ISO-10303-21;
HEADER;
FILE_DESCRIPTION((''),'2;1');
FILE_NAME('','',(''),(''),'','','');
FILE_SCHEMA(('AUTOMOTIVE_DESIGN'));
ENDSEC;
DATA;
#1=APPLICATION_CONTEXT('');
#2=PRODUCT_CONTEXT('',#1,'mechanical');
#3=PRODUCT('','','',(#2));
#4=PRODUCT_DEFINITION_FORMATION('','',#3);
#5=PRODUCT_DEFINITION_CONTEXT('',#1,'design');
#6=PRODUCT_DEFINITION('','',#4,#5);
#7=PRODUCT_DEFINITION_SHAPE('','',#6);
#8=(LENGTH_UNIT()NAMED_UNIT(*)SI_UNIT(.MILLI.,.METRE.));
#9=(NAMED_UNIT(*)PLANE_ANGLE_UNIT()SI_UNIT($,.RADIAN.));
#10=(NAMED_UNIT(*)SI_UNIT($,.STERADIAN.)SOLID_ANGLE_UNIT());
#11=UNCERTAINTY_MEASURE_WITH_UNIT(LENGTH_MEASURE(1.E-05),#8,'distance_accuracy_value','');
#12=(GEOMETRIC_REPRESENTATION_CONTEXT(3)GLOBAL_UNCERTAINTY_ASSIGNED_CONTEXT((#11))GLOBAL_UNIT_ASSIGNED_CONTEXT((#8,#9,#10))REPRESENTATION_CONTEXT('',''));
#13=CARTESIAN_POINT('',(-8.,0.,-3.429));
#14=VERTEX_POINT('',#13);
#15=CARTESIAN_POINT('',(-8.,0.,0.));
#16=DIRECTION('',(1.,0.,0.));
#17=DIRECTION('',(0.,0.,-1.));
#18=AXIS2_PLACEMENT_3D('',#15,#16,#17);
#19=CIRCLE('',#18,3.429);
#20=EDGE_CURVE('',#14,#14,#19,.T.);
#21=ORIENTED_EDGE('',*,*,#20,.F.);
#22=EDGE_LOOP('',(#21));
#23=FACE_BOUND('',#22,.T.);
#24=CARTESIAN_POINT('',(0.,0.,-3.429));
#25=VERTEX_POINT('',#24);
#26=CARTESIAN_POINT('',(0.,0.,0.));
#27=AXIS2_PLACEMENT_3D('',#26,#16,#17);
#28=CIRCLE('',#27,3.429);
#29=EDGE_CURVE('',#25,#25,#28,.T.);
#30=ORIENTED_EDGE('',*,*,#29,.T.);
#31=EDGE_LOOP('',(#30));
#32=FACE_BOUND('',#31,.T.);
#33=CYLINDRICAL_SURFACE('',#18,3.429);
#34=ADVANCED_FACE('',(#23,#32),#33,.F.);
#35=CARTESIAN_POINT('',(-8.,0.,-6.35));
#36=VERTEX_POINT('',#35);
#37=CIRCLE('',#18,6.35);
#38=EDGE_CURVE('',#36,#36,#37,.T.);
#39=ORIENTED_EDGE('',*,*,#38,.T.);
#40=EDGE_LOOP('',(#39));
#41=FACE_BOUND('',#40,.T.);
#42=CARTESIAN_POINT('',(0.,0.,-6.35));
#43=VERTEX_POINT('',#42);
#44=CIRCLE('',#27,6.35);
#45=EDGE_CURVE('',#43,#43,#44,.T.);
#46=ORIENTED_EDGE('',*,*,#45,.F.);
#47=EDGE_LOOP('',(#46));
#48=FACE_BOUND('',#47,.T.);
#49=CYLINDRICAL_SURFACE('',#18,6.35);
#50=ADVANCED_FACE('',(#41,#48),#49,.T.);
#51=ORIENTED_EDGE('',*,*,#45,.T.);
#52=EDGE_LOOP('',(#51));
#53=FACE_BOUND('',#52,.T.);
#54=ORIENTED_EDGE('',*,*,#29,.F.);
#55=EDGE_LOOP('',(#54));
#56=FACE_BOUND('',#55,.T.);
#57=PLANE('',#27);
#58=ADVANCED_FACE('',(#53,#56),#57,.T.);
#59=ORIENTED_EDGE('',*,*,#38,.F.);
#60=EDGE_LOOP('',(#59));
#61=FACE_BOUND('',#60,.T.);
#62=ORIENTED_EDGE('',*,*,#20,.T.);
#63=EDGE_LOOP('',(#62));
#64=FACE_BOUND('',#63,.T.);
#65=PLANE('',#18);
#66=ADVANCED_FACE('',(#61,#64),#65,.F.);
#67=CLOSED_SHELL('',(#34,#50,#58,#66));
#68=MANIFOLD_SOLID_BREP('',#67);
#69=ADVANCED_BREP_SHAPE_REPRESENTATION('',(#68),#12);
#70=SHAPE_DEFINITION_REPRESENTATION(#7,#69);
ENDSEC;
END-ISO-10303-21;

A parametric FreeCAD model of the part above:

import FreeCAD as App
import Part
import Sketcher
Q = App.Units.Quantity

doc = App.newDocument("Part")
body = doc.addObject("PartDesign::Body", "Body")

sketch1 = doc.addObject("Sketcher::SketchObject", "Sketch")
body.addObject(sketch1)
sketch1.AttachmentSupport = (doc.YZ_Plane, [""])
sketch1.MapMode = "FlatFace"
sketch1.addGeometry([
    Part.Circle(App.Vector(0, 0, 0), App.Vector(0, 0, 1), 6.3),
    Part.Circle(App.Vector(0, 0, 0), App.Vector(0, 0, 1), 3.4),
], False)
sketch1.addConstraint([
    Sketcher.Constraint("Coincident", 0, 3, -1, 1),
    Sketcher.Constraint("Coincident", 1, 3, -1, 1),
    Sketcher.Constraint("Diameter", 0, Q("0.5 in")),
    Sketcher.Constraint("Diameter", 1, Q("0.27 in")),
])
pad1 = doc.addObject("PartDesign::Pad", "Pad")
body.addObject(pad1)
pad1.Profile = sketch1
pad1.Length = 8
pad1.Reversed = True

doc.recompute()
